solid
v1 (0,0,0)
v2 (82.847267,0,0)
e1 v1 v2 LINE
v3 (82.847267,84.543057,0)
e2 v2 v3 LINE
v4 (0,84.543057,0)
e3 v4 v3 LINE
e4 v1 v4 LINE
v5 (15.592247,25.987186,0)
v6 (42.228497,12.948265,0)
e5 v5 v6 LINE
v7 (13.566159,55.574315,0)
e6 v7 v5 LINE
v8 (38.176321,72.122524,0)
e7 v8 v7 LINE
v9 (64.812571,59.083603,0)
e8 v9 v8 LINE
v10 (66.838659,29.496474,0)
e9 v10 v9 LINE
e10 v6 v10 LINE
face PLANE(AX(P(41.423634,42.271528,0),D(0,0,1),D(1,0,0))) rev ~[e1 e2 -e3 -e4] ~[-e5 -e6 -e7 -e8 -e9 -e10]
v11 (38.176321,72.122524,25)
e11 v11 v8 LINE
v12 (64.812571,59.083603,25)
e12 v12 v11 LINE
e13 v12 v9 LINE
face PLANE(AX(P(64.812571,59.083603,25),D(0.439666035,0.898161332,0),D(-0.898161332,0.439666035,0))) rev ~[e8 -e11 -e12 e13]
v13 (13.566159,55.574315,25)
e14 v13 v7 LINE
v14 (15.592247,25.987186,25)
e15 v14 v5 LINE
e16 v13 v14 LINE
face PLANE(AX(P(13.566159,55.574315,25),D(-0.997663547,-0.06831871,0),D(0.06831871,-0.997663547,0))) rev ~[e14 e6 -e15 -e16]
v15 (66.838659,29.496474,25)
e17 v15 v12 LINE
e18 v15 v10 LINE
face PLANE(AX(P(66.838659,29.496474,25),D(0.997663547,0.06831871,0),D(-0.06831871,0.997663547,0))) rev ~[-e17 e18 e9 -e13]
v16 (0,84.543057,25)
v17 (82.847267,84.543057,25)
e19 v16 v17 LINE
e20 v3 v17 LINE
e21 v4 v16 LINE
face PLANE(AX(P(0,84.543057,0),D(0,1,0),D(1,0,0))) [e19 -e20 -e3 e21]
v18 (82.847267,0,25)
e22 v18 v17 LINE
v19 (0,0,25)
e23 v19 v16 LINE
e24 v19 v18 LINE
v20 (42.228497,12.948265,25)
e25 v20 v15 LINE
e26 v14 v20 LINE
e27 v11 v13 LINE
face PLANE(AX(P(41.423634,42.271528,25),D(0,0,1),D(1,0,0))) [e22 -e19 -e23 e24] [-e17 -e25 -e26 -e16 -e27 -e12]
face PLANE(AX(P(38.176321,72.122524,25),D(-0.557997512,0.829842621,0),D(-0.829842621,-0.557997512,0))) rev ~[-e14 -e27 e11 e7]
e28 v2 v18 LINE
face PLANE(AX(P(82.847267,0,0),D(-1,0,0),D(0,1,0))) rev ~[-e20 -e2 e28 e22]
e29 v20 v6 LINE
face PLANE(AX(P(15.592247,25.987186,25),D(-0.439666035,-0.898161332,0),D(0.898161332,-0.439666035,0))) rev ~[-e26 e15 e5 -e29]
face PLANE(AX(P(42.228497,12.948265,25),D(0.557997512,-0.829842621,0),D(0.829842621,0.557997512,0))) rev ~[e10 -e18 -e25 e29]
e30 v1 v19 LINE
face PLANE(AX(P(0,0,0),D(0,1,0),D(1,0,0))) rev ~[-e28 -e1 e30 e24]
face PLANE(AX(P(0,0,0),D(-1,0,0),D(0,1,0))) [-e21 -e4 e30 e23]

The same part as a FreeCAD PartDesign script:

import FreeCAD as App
import Part
import Sketcher

V = App.Vector

doc = App.newDocument("Part")
body = doc.addObject("PartDesign::Body", "Body")

sketch1 = doc.addObject("Sketcher::SketchObject", "Sketch")
body.addObject(sketch1)
sketch1.AttachmentSupport = (doc.XY_Plane, [""])
sketch1.MapMode = "FlatFace"
sketch1.addGeometry(Part.LineSegment(V(0, 84.543057, 0), V(0, 0, 0)), False)
sketch1.addGeometry(Part.LineSegment(V(0, 0, 0), V(82.847267, 0, 0)), False)
sketch1.addGeometry(Part.LineSegment(V(82.847267, 0, 0), V(82.847267, 84.543057, 0)), False)
sketch1.addGeometry(Part.LineSegment(V(82.847267, 84.543057, 0), V(0, 84.543057, 0)), False)
sketch1.addConstraint(Sketcher.Constraint("Coincident", 0, 2, 1, 1))
sketch1.addConstraint(Sketcher.Constraint("Coincident", 1, 2, 2, 1))
sketch1.addConstraint(Sketcher.Constraint("Coincident", 2, 2, 3, 1))
sketch1.addConstraint(Sketcher.Constraint("Coincident", 3, 2, 0, 1))
sketch1.addConstraint(Sketcher.Constraint("Vertical", 0))
sketch1.addConstraint(Sketcher.Constraint("Horizontal", 1))
sketch1.addConstraint(Sketcher.Constraint("Vertical", 2))
sketch1.addConstraint(Sketcher.Constraint("Horizontal", 3))
sketch1.addConstraint(Sketcher.Constraint("Coincident", 0, 2, -1, 1))
sketch1.addConstraint(Sketcher.Constraint("DistanceX", 1, 1, 1, 2, 82.847267))
sketch1.addConstraint(Sketcher.Constraint("DistanceY", 0, 2, 0, 1, 84.543057))
pad1 = doc.addObject("PartDesign::Pad", "Pad")
body.addObject(pad1)
pad1.Profile = sketch1
pad1.Length = 25

sketch2 = doc.addObject("Sketcher::SketchObject", "Sketch001")
body.addObject(sketch2)
sketch2.AttachmentSupport = (doc.XY_Plane, [""])
sketch2.MapMode = "FlatFace"
sketch2.AttachmentOffset = App.Placement(V(0, 0, 25), App.Rotation())
sketch2.addGeometry(Part.LineSegment(V(66.838659, 29.496474, 0), V(64.812571, 59.083603, 0)), False)
sketch2.addGeometry(Part.LineSegment(V(64.812571, 59.083603, 0), V(38.176321, 72.122524, 0)), False)
sketch2.addGeometry(Part.LineSegment(V(38.176321, 72.122524, 0), V(13.566159, 55.574315, 0)), False)
sketch2.addGeometry(Part.LineSegment(V(13.566159, 55.574315, 0), V(15.592247, 25.987186, 0)), False)
sketch2.addGeometry(Part.LineSegment(V(15.592247, 25.987186, 0), V(42.228497, 12.948265, 0)), False)
sketch2.addGeometry(Part.LineSegment(V(42.228497, 12.948265, 0), V(66.838659, 29.496474, 0)), False)
sketch2.addConstraint(Sketcher.Constraint("Coincident", 0, 2, 1, 1))
sketch2.addConstraint(Sketcher.Constraint("Coincident", 1, 2, 2, 1))
sketch2.addConstraint(Sketcher.Constraint("Coincident", 2, 2, 3, 1))
sketch2.addConstraint(Sketcher.Constraint("Coincident", 3, 2, 4, 1))
sketch2.addConstraint(Sketcher.Constraint("Coincident", 4, 2, 5, 1))
sketch2.addConstraint(Sketcher.Constraint("Coincident", 5, 2, 0, 1))
sketch2.addConstraint(Sketcher.Constraint("Parallel", 0, 3))
sketch2.addConstraint(Sketcher.Constraint("Parallel", 1, 4))
sketch2.addConstraint(Sketcher.Constraint("Parallel", 2, 5))
sketch2.addConstraint(Sketcher.Constraint("Equal", 0, 1))
sketch2.addConstraint(Sketcher.Constraint("Equal", 1, 2))
sketch2.addConstraint(Sketcher.Constraint("Equal", 2, 3))
sketch2.addConstraint(Sketcher.Constraint("DistanceX", 2, 2, 5, 2, 53.2725))
sketch2.addConstraint(Sketcher.Constraint("Distance", 0, 29.656421))
sketch2.addConstraint(Sketcher.Constraint("DistanceX", -1, 1, 0, 2, 64.812571))
sketch2.addConstraint(Sketcher.Constraint("DistanceX", -1, 1, 1, 2, 38.176321))
sketch2.addConstraint(Sketcher.Constraint("DistanceX", -1, 1, 2, 2, 13.566159))
sketch2.addConstraint(Sketcher.Constraint("DistanceY", -1, 1, 0, 2, 59.083603))
pocket1 = doc.addObject("PartDesign::Pocket", "Pocket")
body.addObject(pocket1)
pocket1.Profile = sketch2
pocket1.Length = 215.097532
pocket1.Reversed = True
pocket1.TaperAngle = 3
pocket2 = doc.addObject("PartDesign::Pocket", "Pocket001")
body.addObject(pocket2)
pocket2.Profile = sketch2
pocket2.Length = 25

doc.recompute()
